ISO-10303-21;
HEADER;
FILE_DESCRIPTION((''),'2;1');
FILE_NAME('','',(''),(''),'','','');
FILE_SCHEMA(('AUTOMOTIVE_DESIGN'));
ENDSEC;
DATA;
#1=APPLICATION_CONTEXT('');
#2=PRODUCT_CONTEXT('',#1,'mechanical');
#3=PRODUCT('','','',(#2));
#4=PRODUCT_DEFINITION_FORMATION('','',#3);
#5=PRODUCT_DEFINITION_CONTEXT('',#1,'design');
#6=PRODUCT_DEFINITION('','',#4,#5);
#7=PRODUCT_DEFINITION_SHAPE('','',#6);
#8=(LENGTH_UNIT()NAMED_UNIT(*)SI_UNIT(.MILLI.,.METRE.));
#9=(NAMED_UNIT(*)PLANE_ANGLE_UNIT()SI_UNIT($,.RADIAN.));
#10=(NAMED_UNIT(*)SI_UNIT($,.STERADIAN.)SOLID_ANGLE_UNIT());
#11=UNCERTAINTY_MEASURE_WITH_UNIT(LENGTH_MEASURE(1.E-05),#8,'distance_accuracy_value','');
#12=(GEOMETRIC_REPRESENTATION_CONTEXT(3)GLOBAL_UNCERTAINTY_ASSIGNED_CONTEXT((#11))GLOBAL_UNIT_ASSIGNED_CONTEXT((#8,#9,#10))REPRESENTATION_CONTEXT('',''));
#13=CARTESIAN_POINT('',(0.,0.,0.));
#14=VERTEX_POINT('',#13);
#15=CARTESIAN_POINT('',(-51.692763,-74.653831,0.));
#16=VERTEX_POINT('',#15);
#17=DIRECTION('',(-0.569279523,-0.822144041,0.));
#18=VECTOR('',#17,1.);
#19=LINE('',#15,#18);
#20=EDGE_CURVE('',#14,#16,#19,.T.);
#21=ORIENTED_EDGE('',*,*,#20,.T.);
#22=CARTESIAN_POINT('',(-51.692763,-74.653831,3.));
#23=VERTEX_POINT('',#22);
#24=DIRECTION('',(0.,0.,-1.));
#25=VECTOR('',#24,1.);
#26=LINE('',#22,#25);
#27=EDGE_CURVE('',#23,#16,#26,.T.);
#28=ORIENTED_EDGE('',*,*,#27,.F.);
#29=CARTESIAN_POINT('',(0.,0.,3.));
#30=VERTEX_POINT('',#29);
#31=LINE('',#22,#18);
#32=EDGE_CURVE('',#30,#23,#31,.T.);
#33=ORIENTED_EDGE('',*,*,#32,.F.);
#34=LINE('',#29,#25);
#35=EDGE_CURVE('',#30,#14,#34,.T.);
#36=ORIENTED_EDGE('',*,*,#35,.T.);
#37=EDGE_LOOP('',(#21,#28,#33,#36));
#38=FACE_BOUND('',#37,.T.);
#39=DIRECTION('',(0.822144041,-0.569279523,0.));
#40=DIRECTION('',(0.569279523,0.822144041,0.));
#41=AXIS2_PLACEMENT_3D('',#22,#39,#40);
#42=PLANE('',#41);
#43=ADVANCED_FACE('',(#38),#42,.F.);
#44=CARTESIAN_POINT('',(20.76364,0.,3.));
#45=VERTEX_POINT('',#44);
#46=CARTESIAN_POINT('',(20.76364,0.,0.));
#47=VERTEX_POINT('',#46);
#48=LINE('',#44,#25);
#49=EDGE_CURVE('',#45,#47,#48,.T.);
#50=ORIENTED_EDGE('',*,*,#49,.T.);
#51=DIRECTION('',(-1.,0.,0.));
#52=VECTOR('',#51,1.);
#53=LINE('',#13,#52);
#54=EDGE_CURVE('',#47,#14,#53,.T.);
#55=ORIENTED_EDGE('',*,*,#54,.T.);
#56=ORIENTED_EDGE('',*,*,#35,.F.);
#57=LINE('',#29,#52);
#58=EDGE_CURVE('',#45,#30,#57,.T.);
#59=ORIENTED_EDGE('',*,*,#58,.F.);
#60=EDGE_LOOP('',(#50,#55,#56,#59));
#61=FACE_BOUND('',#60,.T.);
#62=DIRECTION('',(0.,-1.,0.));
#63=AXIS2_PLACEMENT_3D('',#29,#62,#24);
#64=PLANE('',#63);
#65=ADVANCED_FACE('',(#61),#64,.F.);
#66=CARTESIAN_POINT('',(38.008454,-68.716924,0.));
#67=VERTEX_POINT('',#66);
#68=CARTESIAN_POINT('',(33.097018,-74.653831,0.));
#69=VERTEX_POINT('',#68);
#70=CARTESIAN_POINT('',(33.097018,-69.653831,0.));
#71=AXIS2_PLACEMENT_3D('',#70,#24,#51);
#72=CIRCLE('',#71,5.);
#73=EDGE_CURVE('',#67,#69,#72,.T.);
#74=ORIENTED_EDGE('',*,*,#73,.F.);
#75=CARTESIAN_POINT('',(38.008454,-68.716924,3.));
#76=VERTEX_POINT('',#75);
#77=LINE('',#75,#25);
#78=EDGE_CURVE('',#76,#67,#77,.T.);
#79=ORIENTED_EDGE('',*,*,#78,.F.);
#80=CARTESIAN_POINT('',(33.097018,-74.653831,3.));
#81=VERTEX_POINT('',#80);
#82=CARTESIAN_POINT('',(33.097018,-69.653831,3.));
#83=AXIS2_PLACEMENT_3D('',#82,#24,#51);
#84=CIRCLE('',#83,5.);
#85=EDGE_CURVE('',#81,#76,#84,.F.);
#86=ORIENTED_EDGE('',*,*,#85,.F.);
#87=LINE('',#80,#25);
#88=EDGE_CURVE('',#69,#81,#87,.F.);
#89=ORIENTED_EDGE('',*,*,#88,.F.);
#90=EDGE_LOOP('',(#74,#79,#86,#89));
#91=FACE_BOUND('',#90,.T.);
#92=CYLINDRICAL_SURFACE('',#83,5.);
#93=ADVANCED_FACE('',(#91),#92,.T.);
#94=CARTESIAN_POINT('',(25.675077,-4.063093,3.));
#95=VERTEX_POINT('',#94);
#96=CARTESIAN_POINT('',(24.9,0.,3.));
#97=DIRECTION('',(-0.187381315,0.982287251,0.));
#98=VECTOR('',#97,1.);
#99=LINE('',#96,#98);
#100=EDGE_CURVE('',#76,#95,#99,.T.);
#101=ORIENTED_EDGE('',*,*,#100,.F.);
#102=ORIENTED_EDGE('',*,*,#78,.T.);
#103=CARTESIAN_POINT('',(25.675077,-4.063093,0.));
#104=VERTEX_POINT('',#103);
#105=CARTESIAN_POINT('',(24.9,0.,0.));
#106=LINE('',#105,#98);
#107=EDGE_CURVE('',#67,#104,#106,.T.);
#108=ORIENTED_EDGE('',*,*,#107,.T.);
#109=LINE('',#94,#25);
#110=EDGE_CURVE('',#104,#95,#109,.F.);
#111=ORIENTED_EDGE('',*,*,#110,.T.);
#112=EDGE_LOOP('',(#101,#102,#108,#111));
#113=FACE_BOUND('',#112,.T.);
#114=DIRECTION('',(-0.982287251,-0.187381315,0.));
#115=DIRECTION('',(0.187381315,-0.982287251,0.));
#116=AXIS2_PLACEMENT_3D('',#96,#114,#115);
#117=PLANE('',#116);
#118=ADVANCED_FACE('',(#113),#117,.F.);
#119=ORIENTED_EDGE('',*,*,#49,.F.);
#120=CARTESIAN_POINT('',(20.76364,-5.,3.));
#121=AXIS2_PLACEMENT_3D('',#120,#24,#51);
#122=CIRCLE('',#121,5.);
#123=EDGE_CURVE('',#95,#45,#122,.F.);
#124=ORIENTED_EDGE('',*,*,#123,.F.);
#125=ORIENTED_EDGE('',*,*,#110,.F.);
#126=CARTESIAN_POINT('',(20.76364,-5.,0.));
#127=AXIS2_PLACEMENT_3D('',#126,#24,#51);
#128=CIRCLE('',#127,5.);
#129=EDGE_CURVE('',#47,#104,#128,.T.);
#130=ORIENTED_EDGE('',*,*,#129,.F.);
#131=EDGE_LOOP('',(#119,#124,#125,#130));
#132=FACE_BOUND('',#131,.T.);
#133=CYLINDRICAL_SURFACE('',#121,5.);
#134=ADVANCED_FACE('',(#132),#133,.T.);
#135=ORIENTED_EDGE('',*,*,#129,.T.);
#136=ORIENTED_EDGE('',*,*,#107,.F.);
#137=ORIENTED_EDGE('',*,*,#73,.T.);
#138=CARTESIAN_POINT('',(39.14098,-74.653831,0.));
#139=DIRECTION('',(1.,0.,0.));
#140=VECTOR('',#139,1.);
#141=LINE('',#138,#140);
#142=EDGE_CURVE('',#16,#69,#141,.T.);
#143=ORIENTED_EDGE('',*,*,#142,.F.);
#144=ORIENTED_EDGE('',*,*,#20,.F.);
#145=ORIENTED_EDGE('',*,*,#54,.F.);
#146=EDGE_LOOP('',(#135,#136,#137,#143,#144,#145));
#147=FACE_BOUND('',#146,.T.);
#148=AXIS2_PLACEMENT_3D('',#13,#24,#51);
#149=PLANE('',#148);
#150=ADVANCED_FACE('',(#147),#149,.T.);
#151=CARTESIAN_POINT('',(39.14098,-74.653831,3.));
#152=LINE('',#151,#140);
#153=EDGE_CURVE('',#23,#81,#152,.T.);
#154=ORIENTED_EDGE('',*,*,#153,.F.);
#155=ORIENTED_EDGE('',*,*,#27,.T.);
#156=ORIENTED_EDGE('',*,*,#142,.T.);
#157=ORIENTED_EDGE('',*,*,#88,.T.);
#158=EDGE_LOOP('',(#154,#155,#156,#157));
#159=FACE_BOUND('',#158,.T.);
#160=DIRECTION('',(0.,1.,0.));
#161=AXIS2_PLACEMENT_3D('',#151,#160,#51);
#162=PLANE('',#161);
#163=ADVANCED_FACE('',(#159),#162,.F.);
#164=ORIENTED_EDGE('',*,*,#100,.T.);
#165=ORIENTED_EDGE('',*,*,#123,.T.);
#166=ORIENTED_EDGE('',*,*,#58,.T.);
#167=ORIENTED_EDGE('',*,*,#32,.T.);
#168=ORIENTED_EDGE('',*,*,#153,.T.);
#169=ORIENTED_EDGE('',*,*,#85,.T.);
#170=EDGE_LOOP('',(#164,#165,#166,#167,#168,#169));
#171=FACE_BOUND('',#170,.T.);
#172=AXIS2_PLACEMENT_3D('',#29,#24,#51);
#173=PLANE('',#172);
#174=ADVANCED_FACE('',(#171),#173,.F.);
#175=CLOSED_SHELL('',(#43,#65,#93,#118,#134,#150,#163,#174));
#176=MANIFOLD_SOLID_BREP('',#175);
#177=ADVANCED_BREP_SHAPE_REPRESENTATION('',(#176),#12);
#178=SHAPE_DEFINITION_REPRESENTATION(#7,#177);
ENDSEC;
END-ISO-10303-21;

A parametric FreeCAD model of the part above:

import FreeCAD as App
import Part
import Sketcher
from FreeCAD import Vector
Q = App.Units.Quantity


def edges_at(feature, points):
    """Names of the edges that pass closest to the given points."""
    edges = feature.Shape.Edges
    near = lambda p: min(range(len(edges)), key=lambda i: edges[i].distToShape(Part.Vertex(*p))[0])
    return sorted({f"Edge{near(p) + 1}" for p in points})


def add_polygon(sketch, points):
    """Adds a closed chain of lines whose ends are joined by coincident constraints."""
    first, n = sketch.GeometryCount, len(points)
    for a, b in zip(points, points[1:] + points[:1]):
        sketch.addGeometry(Part.LineSegment(App.Vector(*a, 0), App.Vector(*b, 0)), False)
    for i in range(n):
        sketch.addConstraint(Sketcher.Constraint("Coincident", first + i, 2, first + (i + 1) % n, 1))

doc = App.newDocument("Part")
body = doc.addObject("PartDesign::Body", "Body")

# Sketch on XY plane
sketch1 = body.newObject("Sketcher::SketchObject", "Sketch")
sketch1.AttachmentSupport = (doc.getObject("XY_Plane"), [""])
sketch1.MapMode = "FlatFace"
add_polygon(sketch1, [(25, 0), (0, 0), (-52, -75), (39, -75)])  # lines 0-3
sketch1.addConstraint(Sketcher.Constraint("Horizontal", 0))
sketch1.addConstraint(Sketcher.Constraint("Horizontal", 2))
sketch1.addConstraint(Sketcher.Constraint("Coincident", 0, 2, -1, 1))
sketch1.addConstraint(Sketcher.Constraint("Distance", 3, Q("76 mm")))
sketch1.addConstraint(Sketcher.Constraint("DistanceX", 0, 2, 0, 1, Q("24.9 mm")))
sketch1.addConstraint(Sketcher.Constraint("Angle", 1, Q("-124.7 deg")))
sketch1.addConstraint(Sketcher.Constraint("Angle", 3, Q("100.8 deg")))
pad1 = body.newObject("PartDesign::Pad", "Pad")
pad1.Profile = sketch1
pad1.Length = 3
doc.recompute()

fillet = body.newObject("PartDesign::Fillet", "Fillet")
fillet.Base = (pad1, edges_at(pad1, [(24.9, 0, 1.5), (39.141, -74.654, 1.5)]))
fillet.Radius = 5

doc.recompute()
